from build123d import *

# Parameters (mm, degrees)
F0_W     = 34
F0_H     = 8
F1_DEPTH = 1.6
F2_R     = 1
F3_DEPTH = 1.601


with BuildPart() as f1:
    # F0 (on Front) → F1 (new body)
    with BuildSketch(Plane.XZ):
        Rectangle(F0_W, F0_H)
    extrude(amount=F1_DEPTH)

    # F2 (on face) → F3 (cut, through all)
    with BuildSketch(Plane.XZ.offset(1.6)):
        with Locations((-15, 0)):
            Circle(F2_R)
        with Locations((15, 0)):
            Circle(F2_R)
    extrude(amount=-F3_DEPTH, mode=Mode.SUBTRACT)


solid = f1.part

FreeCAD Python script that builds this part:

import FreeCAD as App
import Part
import Sketcher

V = App.Vector


def add_polygon(sketch, points):
    """Adds a closed chain of lines whose ends are joined by coincident constraints."""
    first, n = sketch.GeometryCount, len(points)
    for a, b in zip(points, points[1:] + points[:1]):
        sketch.addGeometry(Part.LineSegment(App.Vector(*a, 0), App.Vector(*b, 0)), False)
    for i in range(n):
        sketch.addConstraint(Sketcher.Constraint("Coincident", first + i, 2, first + (i + 1) % n, 1))

doc = App.newDocument("Part")
body = doc.addObject("PartDesign::Body", "Body")

sketch1 = body.newObject("Sketcher::SketchObject", "Sketch")
sketch1.AttachmentSupport = (doc.getObject("XZ_Plane"), [""])
sketch1.MapMode = "FlatFace"
add_polygon(sketch1, [(-17, 4), (-17, -4), (17, -4), (17, 4)])
sketch1.addConstraint([
    Sketcher.Constraint("Vertical", 0),
    Sketcher.Constraint("Horizontal", 1),
    Sketcher.Constraint("Vertical", 2),
    Sketcher.Constraint("Horizontal", 3),
    Sketcher.Constraint("Symmetric", 0, 2, 2, 2, -1, 1),
    Sketcher.Constraint("DistanceX", 1, 1, 1, 2, 34.0),
    Sketcher.Constraint("DistanceY", 0, 2, 0, 1, 8.0),
])
pad1 = body.newObject("PartDesign::Pad", "Pad")
pad1.Profile = sketch1
pad1.Length = 1.6

sketch2 = body.newObject("Sketcher::SketchObject", "Sketch001")
sketch2.AttachmentSupport = (doc.getObject("XZ_Plane"), [""])
sketch2.MapMode = "FlatFace"
sketch2.AttachmentOffset = App.Placement(V(0, 0, 1.6), App.Rotation())
sketch2.addGeometry([
    Part.Circle(V(-15, 0, 0), V(0, 0, 1), 1),
    Part.Circle(V(15, 0, 0), V(0, 0, 1), 1),
], False)
sketch2.addConstraint([
    Sketcher.Constraint("Equal", 0, 1),
    Sketcher.Constraint("Symmetric", 0, 3, 1, 3, -1, 1),
    Sketcher.Constraint("PointOnObject", 0, 3, -1),
    Sketcher.Constraint("Diameter", 0, 2.0),
    Sketcher.Constraint("DistanceX", 0, 3, -1, 1, 15.0),
])
pocket1 = body.newObject("PartDesign::Pocket", "Pocket")
pocket1.Profile = sketch2
pocket1.Type = "ThroughAll"

doc.recompute()
